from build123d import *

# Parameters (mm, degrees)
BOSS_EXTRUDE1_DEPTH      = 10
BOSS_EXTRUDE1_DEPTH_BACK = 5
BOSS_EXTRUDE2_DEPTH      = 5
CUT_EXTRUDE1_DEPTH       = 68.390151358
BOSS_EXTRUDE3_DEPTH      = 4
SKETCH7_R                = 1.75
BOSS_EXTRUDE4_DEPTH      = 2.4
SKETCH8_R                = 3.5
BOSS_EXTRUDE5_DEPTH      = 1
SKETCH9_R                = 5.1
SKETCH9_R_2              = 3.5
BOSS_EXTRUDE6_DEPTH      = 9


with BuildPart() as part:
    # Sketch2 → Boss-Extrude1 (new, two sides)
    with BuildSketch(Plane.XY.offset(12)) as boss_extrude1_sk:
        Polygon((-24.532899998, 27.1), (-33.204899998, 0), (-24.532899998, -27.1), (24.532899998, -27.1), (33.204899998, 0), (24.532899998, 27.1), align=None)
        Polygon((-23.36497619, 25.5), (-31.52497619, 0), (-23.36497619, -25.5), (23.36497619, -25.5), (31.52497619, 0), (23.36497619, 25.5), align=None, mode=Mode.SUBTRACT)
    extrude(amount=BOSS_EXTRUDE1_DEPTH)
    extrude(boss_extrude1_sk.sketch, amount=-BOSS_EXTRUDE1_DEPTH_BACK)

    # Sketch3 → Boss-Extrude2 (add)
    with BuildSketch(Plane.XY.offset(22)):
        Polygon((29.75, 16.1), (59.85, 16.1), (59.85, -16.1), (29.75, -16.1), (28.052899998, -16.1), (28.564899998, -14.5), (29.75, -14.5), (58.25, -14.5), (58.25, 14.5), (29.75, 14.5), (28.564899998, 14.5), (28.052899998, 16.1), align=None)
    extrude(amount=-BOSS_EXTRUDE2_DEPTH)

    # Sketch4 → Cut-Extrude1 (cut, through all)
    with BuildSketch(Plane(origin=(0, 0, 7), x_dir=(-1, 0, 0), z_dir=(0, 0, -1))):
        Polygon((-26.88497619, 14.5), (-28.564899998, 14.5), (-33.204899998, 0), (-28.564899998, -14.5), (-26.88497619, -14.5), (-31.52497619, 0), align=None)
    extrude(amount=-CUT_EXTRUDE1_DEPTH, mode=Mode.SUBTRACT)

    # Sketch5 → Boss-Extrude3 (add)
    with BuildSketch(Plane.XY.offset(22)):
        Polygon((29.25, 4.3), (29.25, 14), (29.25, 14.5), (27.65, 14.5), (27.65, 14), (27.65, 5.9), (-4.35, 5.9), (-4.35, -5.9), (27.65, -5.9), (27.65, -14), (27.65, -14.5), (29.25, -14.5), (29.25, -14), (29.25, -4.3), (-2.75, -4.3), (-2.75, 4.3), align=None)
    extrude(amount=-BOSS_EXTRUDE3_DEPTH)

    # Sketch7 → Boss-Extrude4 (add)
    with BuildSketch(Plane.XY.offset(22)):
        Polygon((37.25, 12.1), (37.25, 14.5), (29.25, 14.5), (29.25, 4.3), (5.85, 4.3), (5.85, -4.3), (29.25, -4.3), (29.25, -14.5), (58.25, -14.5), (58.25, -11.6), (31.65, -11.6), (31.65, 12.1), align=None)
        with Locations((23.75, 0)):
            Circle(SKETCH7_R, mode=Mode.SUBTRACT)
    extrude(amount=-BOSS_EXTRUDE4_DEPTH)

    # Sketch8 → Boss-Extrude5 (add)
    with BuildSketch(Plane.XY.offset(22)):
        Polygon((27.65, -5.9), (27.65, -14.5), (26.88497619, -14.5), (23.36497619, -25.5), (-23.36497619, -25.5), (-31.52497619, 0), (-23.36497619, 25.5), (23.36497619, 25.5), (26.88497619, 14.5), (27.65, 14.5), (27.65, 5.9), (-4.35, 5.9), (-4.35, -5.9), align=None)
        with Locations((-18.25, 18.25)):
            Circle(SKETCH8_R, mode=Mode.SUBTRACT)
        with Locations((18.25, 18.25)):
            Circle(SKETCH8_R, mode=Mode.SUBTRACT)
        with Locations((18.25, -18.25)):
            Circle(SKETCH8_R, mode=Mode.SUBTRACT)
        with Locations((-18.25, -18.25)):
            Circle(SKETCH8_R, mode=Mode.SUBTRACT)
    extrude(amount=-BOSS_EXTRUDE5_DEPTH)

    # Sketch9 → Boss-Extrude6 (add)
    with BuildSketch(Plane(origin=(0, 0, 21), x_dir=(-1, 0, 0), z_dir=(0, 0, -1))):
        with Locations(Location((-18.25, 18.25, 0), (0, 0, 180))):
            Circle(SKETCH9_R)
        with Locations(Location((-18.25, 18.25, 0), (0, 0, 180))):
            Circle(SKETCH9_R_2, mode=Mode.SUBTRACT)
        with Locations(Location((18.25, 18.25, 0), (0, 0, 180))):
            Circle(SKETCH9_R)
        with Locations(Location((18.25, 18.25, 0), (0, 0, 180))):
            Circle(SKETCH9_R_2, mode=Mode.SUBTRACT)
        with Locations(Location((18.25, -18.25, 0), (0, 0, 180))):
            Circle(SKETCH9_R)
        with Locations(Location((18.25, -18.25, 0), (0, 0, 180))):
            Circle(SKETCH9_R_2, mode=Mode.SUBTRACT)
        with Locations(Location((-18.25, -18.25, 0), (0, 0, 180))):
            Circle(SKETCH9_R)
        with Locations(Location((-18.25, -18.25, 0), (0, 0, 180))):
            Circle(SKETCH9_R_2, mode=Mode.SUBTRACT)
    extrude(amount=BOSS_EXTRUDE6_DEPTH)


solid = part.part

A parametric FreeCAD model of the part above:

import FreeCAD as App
import Part
import Sketcher

V = App.Vector

doc = App.newDocument("Part")
body = doc.addObject("PartDesign::Body", "Body")

# Sketch on XY plane
sketch1 = body.newObject("Sketcher::SketchObject", "Sketch")
sketch1.AttachmentSupport = (doc.getObject("XY_Plane"), [""])
sketch1.MapMode = "FlatFace"
sketch1.AttachmentOffset = App.Placement(V(0, 0, 12), App.Rotation())
sketch1.addGeometry(Part.LineSegment(V(-24.5329, 27.1, 0), V(-33.2049, 0, 0)), False)
sketch1.addGeometry(Part.LineSegment(V(-33.2049, 0, 0), V(-24.5329, -27.1, 0)), False)
sketch1.addGeometry(Part.LineSegment(V(-24.5329, -27.1, 0), V(24.5329, -27.1, 0)), False)
sketch1.addGeometry(Part.LineSegment(V(24.5329, -27.1, 0), V(33.2049, 0, 0)), False)
sketch1.addGeometry(Part.LineSegment(V(33.2049, 0, 0), V(24.5329, 27.1, 0)), False)
sketch1.addGeometry(Part.LineSegment(V(24.5329, 27.1, 0), V(-24.5329, 27.1, 0)), False)
sketch1.addGeometry(Part.LineSegment(V(-31.524976, 0, 0), V(-23.364976, 25.5, 0)), False)
sketch1.addGeometry(Part.LineSegment(V(-23.364976, 25.5, 0), V(23.364976, 25.5, 0)), False)
sketch1.addGeometry(Part.LineSegment(V(23.364976, 25.5, 0), V(31.524976, 0, 0)), False)
sketch1.addGeometry(Part.LineSegment(V(31.524976, 0, 0), V(23.364976, -25.5, 0)), False)
sketch1.addGeometry(Part.LineSegment(V(23.364976, -25.5, 0), V(-23.364976, -25.5, 0)), False)
sketch1.addGeometry(Part.LineSegment(V(-23.364976, -25.5, 0), V(-31.524976, 0, 0)), False)
sketch1.addConstraint(Sketcher.Constraint("Coincident", 0, 2, 1, 1))
sketch1.addConstraint(Sketcher.Constraint("Coincident", 1, 2, 2, 1))
sketch1.addConstraint(Sketcher.Constraint("Coincident", 2, 2, 3, 1))
sketch1.addConstraint(Sketcher.Constraint("Coincident", 3, 2, 4, 1))
sketch1.addConstraint(Sketcher.Constraint("Coincident", 4, 2, 5, 1))
sketch1.addConstraint(Sketcher.Constraint("Coincident", 5, 2, 0, 1))
sketch1.addConstraint(Sketcher.Constraint("Coincident", 6, 2, 7, 1))
sketch1.addConstraint(Sketcher.Constraint("Coincident", 7, 2, 8, 1))
sketch1.addConstraint(Sketcher.Constraint("Coincident", 8, 2, 9, 1))
sketch1.addConstraint(Sketcher.Constraint("Coincident", 9, 2, 10, 1))
sketch1.addConstraint(Sketcher.Constraint("Coincident", 10, 2, 11, 1))
sketch1.addConstraint(Sketcher.Constraint("Coincident", 11, 2, 6, 1))
sketch1.addConstraint(Sketcher.Constraint("Horizontal", 2))
sketch1.addConstraint(Sketcher.Constraint("Horizontal", 5))
sketch1.addConstraint(Sketcher.Constraint("Horizontal", 7))
sketch1.addConstraint(Sketcher.Constraint("Horizontal", 10))
sketch1.addConstraint(Sketcher.Constraint("Symmetric", 0, 2, 3, 2, -1, 1))
sketch1.addConstraint(Sketcher.Constraint("Symmetric", 1, 2, 4, 2, -1, 1))
sketch1.addConstraint(Sketcher.Constraint("Symmetric", 6, 2, 9, 2, -1, 1))
sketch1.addConstraint(Sketcher.Constraint("Symmetric", 8, 2, 11, 2, -1, 1))
sketch1.addConstraint(Sketcher.Constraint("PointOnObject", 0, 2, -1))
sketch1.addConstraint(Sketcher.Constraint("PointOnObject", 8, 2, -1))
sketch1.addConstraint(Sketcher.Constraint("Parallel", 0, 3))
sketch1.addConstraint(Sketcher.Constraint("Parallel", 3, 6))
sketch1.addConstraint(Sketcher.Constraint("Parallel", 4, 8))
sketch1.addConstraint(Sketcher.Constraint("Parallel", 8, 11))
sketch1.addConstraint(Sketcher.Constraint("Vertical", 2, 2, 4, 2))
sketch1.addConstraint(Sketcher.Constraint("DistanceY", 9, 2, 7, 2, 51.0))
sketch1.addConstraint(Sketcher.Constraint("DistanceY", 1, 2, -1, 1, 27.1))
sketch1.addConstraint(Sketcher.Constraint("DistanceX", 7, 2, 8, 2, 8.16))
sketch1.addConstraint(Sketcher.Constraint("DistanceX", 2, 1, 2, 2, 49.0658))
sketch1.addConstraint(Sketcher.Constraint("DistanceX", 7, 1, 7, 2, 46.729952))
pad1 = body.newObject("PartDesign::Pad", "Pad")
pad1.Profile = sketch1
pad1.Type = "TwoLengths"
pad1.Length = 10
pad1.Length2 = 5

# Sketch on XY plane
sketch2 = body.newObject("Sketcher::SketchObject", "Sketch001")
sketch2.AttachmentSupport = (doc.getObject("XY_Plane"), [""])
sketch2.MapMode = "FlatFace"
sketch2.AttachmentOffset = App.Placement(V(0, 0, 22), App.Rotation())
sketch2.addGeometry(Part.LineSegment(V(59.85, 16.1, 0), V(28.0529, 16.1, 0)), False)
sketch2.addGeometry(Part.LineSegment(V(28.0529, 16.1, 0), V(28.5649, 14.5, 0)), False)
sketch2.addGeometry(Part.LineSegment(V(28.5649, 14.5, 0), V(58.25, 14.5, 0)), False)
sketch2.addGeometry(Part.LineSegment(V(58.25, 14.5, 0), V(58.25, -14.5, 0)), False)
sketch2.addGeometry(Part.LineSegment(V(58.25, -14.5, 0), V(28.5649, -14.5, 0)), False)
sketch2.addGeometry(Part.LineSegment(V(28.5649, -14.5, 0), V(28.0529, -16.1, 0)), False)
sketch2.addGeometry(Part.LineSegment(V(28.0529, -16.1, 0), V(59.85, -16.1, 0)), False)
sketch2.addGeometry(Part.LineSegment(V(59.85, -16.1, 0), V(59.85, 16.1, 0)), False)
sketch2.addConstraint(Sketcher.Constraint("Coincident", 0, 2, 1, 1))
sketch2.addConstraint(Sketcher.Constraint("Coincident", 1, 2, 2, 1))
sketch2.addConstraint(Sketcher.Constraint("Coincident", 2, 2, 3, 1))
sketch2.addConstraint(Sketcher.Constraint("Coincident", 3, 2, 4, 1))
sketch2.addConstraint(Sketcher.Constraint("Coincident", 4, 2, 5, 1))
sketch2.addConstraint(Sketcher.Constraint("Coincident", 5, 2, 6, 1))
sketch2.addConstraint(Sketcher.Constraint("Coincident", 6, 2, 7, 1))
sketch2.addConstraint(Sketcher.Constraint("Coincident", 7, 2, 0, 1))
sketch2.addConstraint(Sketcher.Constraint("Horizontal", 0))
sketch2.addConstraint(Sketcher.Constraint("Horizontal", 2))
sketch2.addConstraint(Sketcher.Constraint("Vertical", 3))
sketch2.addConstraint(Sketcher.Constraint("Horizontal", 4))
sketch2.addConstraint(Sketcher.Constraint("Horizontal", 6))
sketch2.addConstraint(Sketcher.Constraint("Vertical", 7))
sketch2.addConstraint(Sketcher.Constraint("Symmetric", 1, 2, 4, 2, -1))
sketch2.addConstraint(Sketcher.Constraint("Symmetric", 0, 2, 5, 2, -1))
sketch2.addConstraint(Sketcher.Constraint("DistanceY", 3, 2, 3, 1, 29.0))
sketch2.addConstraint(Sketcher.Constraint("DistanceY", 7, 1, 7, 2, 32.2))
sketch2.addConstraint(Sketcher.Constraint("DistanceX", 3, 2, 6, 2, 1.6))
sketch2.addConstraint(Sketcher.Constraint("DistanceX", -1, 1, 2, 2, 58.25))
sketch2.addConstraint(Sketcher.Constraint("DistanceX", 0, 2, 0, 1, 31.7971))
sketch2.addConstraint(Sketcher.Constraint("DistanceX", 2, 1, 2, 2, 29.6851))
pad2 = body.newObject("PartDesign::Pad", "Pad001")
pad2.Profile = sketch2
pad2.Length = 5
pad2.Reversed = True

# Sketch on XY plane
sketch3 = body.newObject("Sketcher::SketchObject", "Sketch002")
sketch3.AttachmentSupport = (doc.getObject("XY_Plane"), [""])
sketch3.MapMode = "FlatFace"
sketch3.AttachmentOffset = App.Placement(V(0, 0, 7), App.Rotation())
sketch3.addGeometry(Part.LineSegment(V(26.884976, 14.5, 0), V(28.5649, 14.5, 0)), False)
sketch3.addGeometry(Part.LineSegment(V(28.5649, 14.5, 0), V(33.2049, 0, 0)), False)
sketch3.addGeometry(Part.LineSegment(V(33.2049, 0, 0), V(28.5649, -14.5, 0)), False)
sketch3.addGeometry(Part.LineSegment(V(28.5649, -14.5, 0), V(26.884976, -14.5, 0)), False)
sketch3.addGeometry(Part.LineSegment(V(26.884976, -14.5, 0), V(31.524976, 0, 0)), False)
sketch3.addGeometry(Part.LineSegment(V(31.524976, 0, 0), V(26.884976, 14.5, 0)), False)
sketch3.addConstraint(Sketcher.Constraint("Coincident", 0, 2, 1, 1))
sketch3.addConstraint(Sketcher.Constraint("Coincident", 1, 2, 2, 1))
sketch3.addConstraint(Sketcher.Constraint("Coincident", 2, 2, 3, 1))
sketch3.addConstraint(Sketcher.Constraint("Coincident", 3, 2, 4, 1))
sketch3.addConstraint(Sketcher.Constraint("Coincident", 4, 2, 5, 1))
sketch3.addConstraint(Sketcher.Constraint("Coincident", 5, 2, 0, 1))
sketch3.addConstraint(Sketcher.Constraint("Horizontal", 0))
sketch3.addConstraint(Sketcher.Constraint("Horizontal", 3))
sketch3.addConstraint(Sketcher.Constraint("Symmetric", 0, 2, 2, 2, -1))
sketch3.addConstraint(Sketcher.Constraint("PointOnObject", 1, 2, -1))
sketch3.addConstraint(Sketcher.Constraint("PointOnObject", 4, 2, -1))
sketch3.addConstraint(Sketcher.Constraint("Parallel", 2, 4))
sketch3.addConstraint(Sketcher.Constraint("Parallel", 1, 5))
sketch3.addConstraint(Sketcher.Constraint("DistanceY", 2, 2, 0, 2, 29.0))
sketch3.addConstraint(Sketcher.Constraint("DistanceX", 0, 2, 1, 2, 4.64))
sketch3.addConstraint(Sketcher.Constraint("DistanceX", -1, 1, 0, 2, 28.5649))
sketch3.addConstraint(Sketcher.Constraint("DistanceX", 0, 1, 0, 2, 1.679924))
pocket1 = body.newObject("PartDesign::Pocket", "Pocket")
pocket1.Profile = sketch3
pocket1.Type = "ThroughAll"
pocket1.Reversed = True

# Sketch on XY plane
sketch4 = body.newObject("Sketcher::SketchObject", "Sketch003")
sketch4.AttachmentSupport = (doc.getObject("XY_Plane"), [""])
sketch4.MapMode = "FlatFace"
sketch4.AttachmentOffset = App.Placement(V(0, 0, 22), App.Rotation())
sketch4.addGeometry(Part.LineSegment(V(29.25, 4.3, 0), V(29.25, 14.5, 0)), False)
sketch4.addGeometry(Part.LineSegment(V(29.25, 14.5, 0), V(27.65, 14.5, 0)), False)
sketch4.addGeometry(Part.LineSegment(V(27.65, 14.5, 0), V(27.65, 5.9, 0)), False)
sketch4.addGeometry(Part.LineSegment(V(27.65, 5.9, 0), V(-4.35, 5.9, 0)), False)
sketch4.addGeometry(Part.LineSegment(V(-4.35, 5.9, 0), V(-4.35, -5.9, 0)), False)
sketch4.addGeometry(Part.LineSegment(V(-4.35, -5.9, 0), V(27.65, -5.9, 0)), False)
sketch4.addGeometry(Part.LineSegment(V(27.65, -5.9, 0), V(27.65, -14.5, 0)), False)
sketch4.addGeometry(Part.LineSegment(V(27.65, -14.5, 0), V(29.25, -14.5, 0)), False)
sketch4.addGeometry(Part.LineSegment(V(29.25, -14.5, 0), V(29.25, -4.3, 0)), False)
sketch4.addGeometry(Part.LineSegment(V(29.25, -4.3, 0), V(-2.75, -4.3, 0)), False)
sketch4.addGeometry(Part.LineSegment(V(-2.75, -4.3, 0), V(-2.75, 4.3, 0)), False)
sketch4.addGeometry(Part.LineSegment(V(-2.75, 4.3, 0), V(29.25, 4.3, 0)), False)
sketch4.addConstraint(Sketcher.Constraint("Coincident", 0, 2, 1, 1))
sketch4.addConstraint(Sketcher.Constraint("Coincident", 1, 2, 2, 1))
sketch4.addConstraint(Sketcher.Constraint("Coincident", 2, 2, 3, 1))
sketch4.addConstraint(Sketcher.Constraint("Coincident", 3, 2, 4, 1))
sketch4.addConstraint(Sketcher.Constraint("Coincident", 4, 2, 5, 1))
sketch4.addConstraint(Sketcher.Constraint("Coincident", 5, 2, 6, 1))
sketch4.addConstraint(Sketcher.Constraint("Coincident", 6, 2, 7, 1))
sketch4.addConstraint(Sketcher.Constraint("Coincident", 7, 2, 8, 1))
sketch4.addConstraint(Sketcher.Constraint("Coincident", 8, 2, 9, 1))
sketch4.addConstraint(Sketcher.Constraint("Coincident", 9, 2, 10, 1))
sketch4.addConstraint(Sketcher.Constraint("Coincident", 10, 2, 11, 1))
sketch4.addConstraint(Sketcher.Constraint("Coincident", 11, 2, 0, 1))
sketch4.addConstraint(Sketcher.Constraint("Vertical", 0))
sketch4.addConstraint(Sketcher.Constraint("Horizontal", 1))
sketch4.addConstraint(Sketcher.Constraint("Vertical", 2))
sketch4.addConstraint(Sketcher.Constraint("Horizontal", 3))
sketch4.addConstraint(Sketcher.Constraint("Vertical", 4))
sketch4.addConstraint(Sketcher.Constraint("Horizontal", 5))
sketch4.addConstraint(Sketcher.Constraint("Vertical", 6))
sketch4.addConstraint(Sketcher.Constraint("Horizontal", 7))
sketch4.addConstraint(Sketcher.Constraint("Vertical", 8))
sketch4.addConstraint(Sketcher.Constraint("Horizontal", 9))
sketch4.addConstraint(Sketcher.Constraint("Vertical", 10))
sketch4.addConstraint(Sketcher.Constraint("Horizontal", 11))
sketch4.addConstraint(Sketcher.Constraint("Symmetric", 2, 2, 5, 2, -1))
sketch4.addConstraint(Sketcher.Constraint("Symmetric", 0, 2, 7, 2, -1))
sketch4.addConstraint(Sketcher.Constraint("Equal", 5, 9))
sketch4.addConstraint(Sketcher.Constraint("Equal", 0, 8))
sketch4.addConstraint(Sketcher.Constraint("Equal", 6, 10))
sketch4.addConstraint(Sketcher.Constraint("DistanceX", 3, 2, 3, 1, 32.0))
sketch4.addConstraint(Sketcher.Constraint("DistanceX", 1, 2, 1, 1, 1.6))
sketch4.addConstraint(Sketcher.Constraint("DistanceY", 0, 1, 0, 2, 10.2))
sketch4.addConstraint(Sketcher.Constraint("DistanceY", 2, 2, 2, 1, 8.6))
sketch4.addConstraint(Sketcher.Constraint("DistanceX", -1, 1, 0, 2, 29.25))
pad3 = body.newObject("PartDesign::Pad", "Pad002")
pad3.Profile = sketch4
pad3.Length = 4
pad3.Reversed = True

# Sketch on XY plane
sketch5 = body.newObject("Sketcher::SketchObject", "Sketch004")
sketch5.AttachmentSupport = (doc.getObject("XY_Plane"), [""])
sketch5.MapMode = "FlatFace"
sketch5.AttachmentOffset = App.Placement(V(0, 0, 22), App.Rotation())
sketch5.addGeometry(Part.LineSegment(V(37.25, 12.1, 0), V(37.25, 14.5, 0)), False)
sketch5.addGeometry(Part.LineSegment(V(37.25, 14.5, 0), V(29.25, 14.5, 0)), False)
sketch5.addGeometry(Part.LineSegment(V(29.25, 14.5, 0), V(29.25, 4.3, 0)), False)
sketch5.addGeometry(Part.LineSegment(V(29.25, 4.3, 0), V(5.85, 4.3, 0)), False)
sketch5.addGeometry(Part.LineSegment(V(5.85, 4.3, 0), V(5.85, -4.3, 0)), False)
sketch5.addGeometry(Part.LineSegment(V(5.85, -4.3, 0), V(29.25, -4.3, 0)), False)
sketch5.addGeometry(Part.LineSegment(V(29.25, -4.3, 0), V(29.25, -14.5, 0)), False)
sketch5.addGeometry(Part.LineSegment(V(29.25, -14.5, 0), V(58.25, -14.5, 0)), False)
sketch5.addGeometry(Part.LineSegment(V(58.25, -14.5, 0), V(58.25, -11.6, 0)), False)
sketch5.addGeometry(Part.LineSegment(V(58.25, -11.6, 0), V(31.65, -11.6, 0)), False)
sketch5.addGeometry(Part.LineSegment(V(31.65, -11.6, 0), V(31.65, 12.1, 0)), False)
sketch5.addGeometry(Part.LineSegment(V(31.65, 12.1, 0), V(37.25, 12.1, 0)), False)
sketch5.addGeometry(Part.Circle(V(23.75, 0, 0), V(0, 0, 1), 1.75), False)
sketch5.addConstraint(Sketcher.Constraint("Coincident", 0, 2, 1, 1))
sketch5.addConstraint(Sketcher.Constraint("Coincident", 1, 2, 2, 1))
sketch5.addConstraint(Sketcher.Constraint("Coincident", 2, 2, 3, 1))
sketch5.addConstraint(Sketcher.Constraint("Coincident", 3, 2, 4, 1))
sketch5.addConstraint(Sketcher.Constraint("Coincident", 4, 2, 5, 1))
sketch5.addConstraint(Sketcher.Constraint("Coincident", 5, 2, 6, 1))
sketch5.addConstraint(Sketcher.Constraint("Coincident", 6, 2, 7, 1))
sketch5.addConstraint(Sketcher.Constraint("Coincident", 7, 2, 8, 1))
sketch5.addConstraint(Sketcher.Constraint("Coincident", 8, 2, 9, 1))
sketch5.addConstraint(Sketcher.Constraint("Coincident", 9, 2, 10, 1))
sketch5.addConstraint(Sketcher.Constraint("Coincident", 10, 2, 11, 1))
sketch5.addConstraint(Sketcher.Constraint("Coincident", 11, 2, 0, 1))
sketch5.addConstraint(Sketcher.Constraint("Vertical", 0))
sketch5.addConstraint(Sketcher.Constraint("Horizontal", 1))
sketch5.addConstraint(Sketcher.Constraint("Vertical", 2))
sketch5.addConstraint(Sketcher.Constraint("Horizontal", 3))
sketch5.addConstraint(Sketcher.Constraint("Vertical", 4))
sketch5.addConstraint(Sketcher.Constraint("Horizontal", 5))
sketch5.addConstraint(Sketcher.Constraint("Vertical", 6))
sketch5.addConstraint(Sketcher.Constraint("Horizontal", 7))
sketch5.addConstraint(Sketcher.Constraint("Vertical", 8))
sketch5.addConstraint(Sketcher.Constraint("Horizontal", 9))
sketch5.addConstraint(Sketcher.Constraint("Vertical", 10))
sketch5.addConstraint(Sketcher.Constraint("Horizontal", 11))
sketch5.addConstraint(Sketcher.Constraint("Symmetric", 2, 2, 5, 2, -1))
sketch5.addConstraint(Sketcher.Constraint("PointOnObject", 12, 3, -1))
sketch5.addConstraint(Sketcher.Constraint("Equal", 2, 6))
sketch5.addConstraint(Sketcher.Constraint("Diameter", 12, 3.5))
sketch5.addConstraint(Sketcher.Constraint("DistanceX", 1, 2, 1, 1, 8.0))
sketch5.addConstraint(Sketcher.Constraint("DistanceX", 7, 1, 7, 2, 29.0))
sketch5.addConstraint(Sketcher.Constraint("DistanceX", 3, 2, 3, 1, 23.4))
sketch5.addConstraint(Sketcher.Constraint("DistanceX", 9, 2, 9, 1, 26.6))
sketch5.addConstraint(Sketcher.Constraint("DistanceY", 0, 1, 0, 2, 2.4))
sketch5.addConstraint(Sketcher.Constraint("DistanceY", 2, 2, 2, 1, 10.2))
sketch5.addConstraint(Sketcher.Constraint("DistanceY", 4, 2, 4, 1, 8.6))
sketch5.addConstraint(Sketcher.Constraint("DistanceY", 8, 1, 8, 2, 2.9))
sketch5.addConstraint(Sketcher.Constraint("DistanceX", 12, 3, 0, 2, 13.5))
sketch5.addConstraint(Sketcher.Constraint("DistanceX", -1, 1, 12, 3, 23.75))
pad4 = body.newObject("PartDesign::Pad", "Pad003")
pad4.Profile = sketch5
pad4.Length = 2.4
pad4.Reversed = True

# Sketch on XY plane
sketch6 = body.newObject("Sketcher::SketchObject", "Sketch005")
sketch6.AttachmentSupport = (doc.getObject("XY_Plane"), [""])
sketch6.MapMode = "FlatFace"
sketch6.AttachmentOffset = App.Placement(V(0, 0, 22), App.Rotation())
sketch6.addGeometry(Part.LineSegment(V(27.65, -14.5, 0), V(27.65, -5.9, 0)), False)
sketch6.addGeometry(Part.LineSegment(V(27.65, -5.9, 0), V(-4.35, -5.9, 0)), False)
sketch6.addGeometry(Part.LineSegment(V(-4.35, -5.9, 0), V(-4.35, 5.9, 0)), False)
sketch6.addGeometry(Part.LineSegment(V(-4.35, 5.9, 0), V(27.65, 5.9, 0)), False)
sketch6.addGeometry(Part.LineSegment(V(27.65, 5.9, 0), V(27.65, 14.5, 0)), False)
sketch6.addGeometry(Part.LineSegment(V(27.65, 14.5, 0), V(26.884976, 14.5, 0)), False)
sketch6.addGeometry(Part.LineSegment(V(26.884976, 14.5, 0), V(23.364976, 25.5, 0)), False)
sketch6.addGeometry(Part.LineSegment(V(23.364976, 25.5, 0), V(-23.364976, 25.5, 0)), False)
sketch6.addGeometry(Part.LineSegment(V(-23.364976, 25.5, 0), V(-31.524976, 0, 0)), False)
sketch6.addGeometry(Part.LineSegment(V(-31.524976, 0, 0), V(-23.364976, -25.5, 0)), False)
sketch6.addGeometry(Part.LineSegment(V(-23.364976, -25.5, 0), V(23.364976, -25.5, 0)), False)
sketch6.addGeometry(Part.LineSegment(V(23.364976, -25.5, 0), V(26.884976, -14.5, 0)), False)
sketch6.addGeometry(Part.LineSegment(V(26.884976, -14.5, 0), V(27.65, -14.5, 0)), False)
sketch6.addGeometry(Part.Circle(V(18.25, -18.25, 0), V(0, 0, 1), 3.5), False)
sketch6.addGeometry(Part.Circle(V(-18.25, -18.25, 0), V(0, 0, 1), 3.5), False)
sketch6.addGeometry(Part.Circle(V(18.25, 18.25, 0), V(0, 0, 1), 3.5), False)
sketch6.addGeometry(Part.Circle(V(-18.25, 18.25, 0), V(0, 0, 1), 3.5), False)
sketch6.addConstraint(Sketcher.Constraint("Coincident", 0, 2, 1, 1))
sketch6.addConstraint(Sketcher.Constraint("Coincident", 1, 2, 2, 1))
sketch6.addConstraint(Sketcher.Constraint("Coincident", 2, 2, 3, 1))
sketch6.addConstraint(Sketcher.Constraint("Coincident", 3, 2, 4, 1))
sketch6.addConstraint(Sketcher.Constraint("Coincident", 4, 2, 5, 1))
sketch6.addConstraint(Sketcher.Constraint("Coincident", 5, 2, 6, 1))
sketch6.addConstraint(Sketcher.Constraint("Coincident", 6, 2, 7, 1))
sketch6.addConstraint(Sketcher.Constraint("Coincident", 7, 2, 8, 1))
sketch6.addConstraint(Sketcher.Constraint("Coincident", 8, 2, 9, 1))
sketch6.addConstraint(Sketcher.Constraint("Coincident", 9, 2, 10, 1))
sketch6.addConstraint(Sketcher.Constraint("Coincident", 10, 2, 11, 1))
sketch6.addConstraint(Sketcher.Constraint("Coincident", 11, 2, 12, 1))
sketch6.addConstraint(Sketcher.Constraint("Coincident", 12, 2, 0, 1))
sketch6.addConstraint(Sketcher.Constraint("Vertical", 0))
sketch6.addConstraint(Sketcher.Constraint("Horizontal", 1))
sketch6.addConstraint(Sketcher.Constraint("Vertical", 2))
sketch6.addConstraint(Sketcher.Constraint("Horizontal", 3))
sketch6.addConstraint(Sketcher.Constraint("Vertical", 4))
sketch6.addConstraint(Sketcher.Constraint("Horizontal", 5))
sketch6.addConstraint(Sketcher.Constraint("Horizontal", 7))
sketch6.addConstraint(Sketcher.Constraint("Horizontal", 10))
sketch6.addConstraint(Sketcher.Constraint("Horizontal", 12))
sketch6.addConstraint(Sketcher.Constraint("Equal", 13, 14))
sketch6.addConstraint(Sketcher.Constraint("Equal", 14, 15))
sketch6.addConstraint(Sketcher.Constraint("Equal", 15, 16))
sketch6.addConstraint(Sketcher.Constraint("Symmetric", 14, 3, 15, 3, -1, 1))
sketch6.addConstraint(Sketcher.Constraint("Symmetric", 13, 3, 16, 3, -1, 1))
sketch6.addConstraint(Sketcher.Constraint("Symmetric", 6, 2, 9, 2, -1, 1))
sketch6.addConstraint(Sketcher.Constraint("Symmetric", 13, 3, 14, 3, -2))
sketch6.addConstraint(Sketcher.Constraint("Symmetric", 0, 2, 3, 2, -1))
sketch6.addConstraint(Sketcher.Constraint("Symmetric", 5, 2, 11, 2, -1))
sketch6.addConstraint(Sketcher.Constraint("PointOnObject", 8, 2, -1))
sketch6.addConstraint(Sketcher.Constraint("Parallel", 6, 9))
sketch6.addConstraint(Sketcher.Constraint("Parallel", 8, 11))
sketch6.addConstraint(Sketcher.Constraint("Vertical", 7, 2, 9, 2))
sketch6.addConstraint(Sketcher.Constraint("Diameter", 13, 7.0))
sketch6.addConstraint(Sketcher.Constraint("DistanceX", 1, 2, 1, 1, 32.0))
sketch6.addConstraint(Sketcher.Constraint("DistanceY", 0, 1, 0, 2, 8.6))
sketch6.addConstraint(Sketcher.Constraint("DistanceY", 2, 1, 2, 2, 11.8))
sketch6.addConstraint(Sketcher.Constraint("DistanceY", 5, 2, 6, 2, 11.0))
sketch6.addConstraint(Sketcher.Constraint("DistanceX", 14, 3, 13, 3, 36.5))
sketch6.addConstraint(Sketcher.Constraint("DistanceY", 13, 3, 15, 3, 36.5))
sketch6.addConstraint(Sketcher.Constraint("DistanceX", 13, 3, 0, 2, 9.4))
sketch6.addConstraint(Sketcher.Constraint("DistanceX", 6, 2, 5, 2, 3.52))
sketch6.addConstraint(Sketcher.Constraint("DistanceX", 5, 2, 5, 1, 0.765024))
pad5 = body.newObject("PartDesign::Pad", "Pad004")
pad5.Profile = sketch6
pad5.Length = 1
pad5.Reversed = True

# Sketch on XY plane
sketch7 = body.newObject("Sketcher::SketchObject", "Sketch006")
sketch7.AttachmentSupport = (doc.getObject("XY_Plane"), [""])
sketch7.MapMode = "FlatFace"
sketch7.AttachmentOffset = App.Placement(V(0, 0, 21), App.Rotation())
sketch7.addGeometry(Part.Circle(V(18.25, 18.25, 0), V(0, 0, 1), 5.1), False)
sketch7.addGeometry(Part.Circle(V(18.25, 18.25, 0), V(0, 0, 1), 3.5), False)
sketch7.addGeometry(Part.Circle(V(-18.25, 18.25, 0), V(0, 0, 1), 5.1), False)
sketch7.addGeometry(Part.Circle(V(-18.25, 18.25, 0), V(0, 0, 1), 3.5), False)
sketch7.addGeometry(Part.Circle(V(-18.25, -18.25, 0), V(0, 0, 1), 5.1), False)
sketch7.addGeometry(Part.Circle(V(-18.25, -18.25, 0), V(0, 0, 1), 3.5), False)
sketch7.addGeometry(Part.Circle(V(18.25, -18.25, 0), V(0, 0, 1), 5.1), False)
sketch7.addGeometry(Part.Circle(V(18.25, -18.25, 0), V(0, 0, 1), 3.5), False)
sketch7.addConstraint(Sketcher.Constraint("Coincident", 1, 3, 0, 3))
sketch7.addConstraint(Sketcher.Constraint("Coincident", 3, 3, 2, 3))
sketch7.addConstraint(Sketcher.Constraint("Coincident", 5, 3, 4, 3))
sketch7.addConstraint(Sketcher.Constraint("Coincident", 7, 3, 6, 3))
sketch7.addConstraint(Sketcher.Constraint("Equal", 0, 2))
sketch7.addConstraint(Sketcher.Constraint("Equal", 1, 3))
sketch7.addConstraint(Sketcher.Constraint("Equal", 2, 4))
sketch7.addConstraint(Sketcher.Constraint("Equal", 3, 5))
sketch7.addConstraint(Sketcher.Constraint("Equal", 4, 6))
sketch7.addConstraint(Sketcher.Constraint("Equal", 5, 7))
sketch7.addConstraint(Sketcher.Constraint("Symmetric", 0, 3, 4, 3, -1, 1))
sketch7.addConstraint(Sketcher.Constraint("Symmetric", 2, 3, 6, 3, -1, 1))
sketch7.addConstraint(Sketcher.Constraint("Symmetric", 0, 3, 2, 3, -2))
sketch7.addConstraint(Sketcher.Constraint("Diameter", 1, 7.0))
sketch7.addConstraint(Sketcher.Constraint("Diameter", 0, 10.2))
sketch7.addConstraint(Sketcher.Constraint("DistanceX", 2, 3, 0, 3, 36.5))
sketch7.addConstraint(Sketcher.Constraint("DistanceY", 4, 3, 2, 3, 36.5))
pad6 = body.newObject("PartDesign::Pad", "Pad005")
pad6.Profile = sketch7
pad6.Length = 9
pad6.Reversed = True

doc.recompute()
